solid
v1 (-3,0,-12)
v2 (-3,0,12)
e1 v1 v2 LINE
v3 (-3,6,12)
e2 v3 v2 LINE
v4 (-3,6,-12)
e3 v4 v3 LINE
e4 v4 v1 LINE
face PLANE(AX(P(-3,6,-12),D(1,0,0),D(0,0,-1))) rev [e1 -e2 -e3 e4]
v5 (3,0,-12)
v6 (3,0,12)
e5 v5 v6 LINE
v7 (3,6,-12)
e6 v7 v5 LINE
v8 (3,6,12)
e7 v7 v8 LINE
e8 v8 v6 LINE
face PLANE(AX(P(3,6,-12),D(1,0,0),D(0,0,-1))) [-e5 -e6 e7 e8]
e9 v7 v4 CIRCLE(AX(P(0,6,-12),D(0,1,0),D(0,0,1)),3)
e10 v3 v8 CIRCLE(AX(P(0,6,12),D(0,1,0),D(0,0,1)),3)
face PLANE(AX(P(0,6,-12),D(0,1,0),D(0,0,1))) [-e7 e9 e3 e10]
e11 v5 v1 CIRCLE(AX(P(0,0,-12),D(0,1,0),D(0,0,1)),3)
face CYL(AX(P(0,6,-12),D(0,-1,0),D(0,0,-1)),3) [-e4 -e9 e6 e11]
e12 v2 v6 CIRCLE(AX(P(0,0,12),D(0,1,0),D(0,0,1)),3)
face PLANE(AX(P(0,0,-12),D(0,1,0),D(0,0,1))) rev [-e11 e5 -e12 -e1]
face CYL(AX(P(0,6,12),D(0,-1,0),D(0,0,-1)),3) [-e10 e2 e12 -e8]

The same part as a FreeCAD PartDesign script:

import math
import FreeCAD as App
import Part
import Sketcher

doc = App.newDocument("Part")
params = doc.addObject("Spreadsheet::Sheet", "Params")
for row, (alias, value) in enumerate([
    ("sketch1_radius", "3 mm"),
    ("sketch1_height", "24 mm"),
    ("pad1_length", "6 mm"),
], start=1):
    params.set(f"A{row}", alias)
    params.set(f"B{row}", "=" + value)
    params.setAlias(f"B{row}", alias)

body = doc.addObject("PartDesign::Body", "Body")

# Sketch on XZ plane
sketch1 = body.newObject("Sketcher::SketchObject", "Sketch")
sketch1.AttachmentSupport = (doc.getObject("XZ_Plane"), [""])
sketch1.MapMode = "FlatFace"
sketch1.addGeometry([
    Part.LineSegment(App.Vector(3, 12, 0), App.Vector(3, -12, 0)),
    Part.ArcOfCircle(Part.Circle(App.Vector(0, -12, 0), App.Vector(0, 0, 1), 3), math.radians(180), math.radians(360)),
    Part.LineSegment(App.Vector(-3, -12, 0), App.Vector(-3, 12, 0)),
    Part.ArcOfCircle(Part.Circle(App.Vector(0, 12, 0), App.Vector(0, 0, 1), 3), math.radians(0), math.radians(180)),
], False)
sketch1.addConstraint([
    Sketcher.Constraint("Tangent", 0, 2, 1, 2),
    Sketcher.Constraint("Tangent", 1, 1, 2, 1),
    Sketcher.Constraint("Tangent", 2, 2, 3, 2),
    Sketcher.Constraint("Tangent", 3, 1, 0, 1),
    Sketcher.Constraint("Vertical", 0),
    Sketcher.Constraint("Vertical", 2),
    Sketcher.Constraint("Symmetric", 1, 3, 3, 3, -1, 1),
    Sketcher.Constraint("Radius", 1, 3.0),
    Sketcher.Constraint("DistanceY", 0, 2, 0, 1, 24.0),
])
sketch1.setExpression("Constraints[7]", "Params.sketch1_radius")
sketch1.setExpression("Constraints[8]", "Params.sketch1_height")
pad1 = body.newObject("PartDesign::Pad", "Pad")
pad1.Profile = sketch1
pad1.setExpression("Length", "Params.pad1_length")
pad1.Reversed = True

doc.recompute()
